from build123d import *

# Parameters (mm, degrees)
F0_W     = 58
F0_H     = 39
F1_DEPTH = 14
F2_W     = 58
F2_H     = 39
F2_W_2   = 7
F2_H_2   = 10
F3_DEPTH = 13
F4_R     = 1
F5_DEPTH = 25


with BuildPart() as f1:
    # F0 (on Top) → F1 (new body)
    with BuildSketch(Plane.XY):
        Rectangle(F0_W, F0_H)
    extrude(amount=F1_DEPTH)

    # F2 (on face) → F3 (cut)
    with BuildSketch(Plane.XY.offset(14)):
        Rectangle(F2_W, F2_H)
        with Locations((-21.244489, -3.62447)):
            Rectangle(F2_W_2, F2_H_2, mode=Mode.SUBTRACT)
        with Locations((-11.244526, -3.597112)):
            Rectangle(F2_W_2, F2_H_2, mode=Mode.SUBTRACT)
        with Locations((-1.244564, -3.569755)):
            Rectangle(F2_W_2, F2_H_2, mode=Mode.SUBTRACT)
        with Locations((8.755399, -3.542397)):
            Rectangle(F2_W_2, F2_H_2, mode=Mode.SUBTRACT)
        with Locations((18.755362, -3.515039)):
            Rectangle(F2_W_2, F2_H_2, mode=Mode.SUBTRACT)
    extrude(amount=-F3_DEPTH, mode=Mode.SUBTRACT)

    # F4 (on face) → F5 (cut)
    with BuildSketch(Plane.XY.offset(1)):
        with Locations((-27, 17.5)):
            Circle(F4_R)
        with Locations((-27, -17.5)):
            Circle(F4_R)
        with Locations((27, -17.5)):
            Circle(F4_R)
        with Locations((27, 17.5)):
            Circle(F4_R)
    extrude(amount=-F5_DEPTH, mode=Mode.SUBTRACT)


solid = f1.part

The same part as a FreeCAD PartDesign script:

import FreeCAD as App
import Part
import Sketcher


def add_polygon(sketch, points):
    """Adds a closed chain of lines whose ends are joined by coincident constraints."""
    first, n = sketch.GeometryCount, len(points)
    for a, b in zip(points, points[1:] + points[:1]):
        sketch.addGeometry(Part.LineSegment(App.Vector(*a, 0), App.Vector(*b, 0)), False)
    for i in range(n):
        sketch.addConstraint(Sketcher.Constraint("Coincident", first + i, 2, first + (i + 1) % n, 1))

doc = App.newDocument("Part")
body = doc.addObject("PartDesign::Body", "Body")

sketch1 = body.newObject("Sketcher::SketchObject", "Sketch")
sketch1.AttachmentSupport = (doc.getObject("XY_Plane"), [""])
sketch1.MapMode = "FlatFace"
add_polygon(sketch1, [(-29, 20), (-29, -20), (29, -20), (29, 20)])
sketch1.addConstraint(Sketcher.Constraint("Vertical", 0))
sketch1.addConstraint(Sketcher.Constraint("Horizontal", 1))
sketch1.addConstraint(Sketcher.Constraint("Vertical", 2))
sketch1.addConstraint(Sketcher.Constraint("Horizontal", 3))
sketch1.addConstraint(Sketcher.Constraint("Symmetric", 0, 2, 2, 2, -1, 1))
sketch1.addConstraint(Sketcher.Constraint("DistanceX", 1, 1, 1, 2, 58.0))
sketch1.addConstraint(Sketcher.Constraint("DistanceY", 0, 2, 0, 1, 39.0))
pad1 = body.newObject("PartDesign::Pad", "Pad")
pad1.Profile = sketch1
pad1.Length = 14

sketch2 = body.newObject("Sketcher::SketchObject", "Sketch001")
sketch2.AttachmentSupport = (doc.getObject("XY_Plane"), [""])
sketch2.MapMode = "FlatFace"
sketch2.AttachmentOffset = App.Placement(App.Vector(0, 0, 14), App.Rotation())
add_polygon(sketch2, [(-29, 20), (-29, -20), (29, -20), (29, 20)])
add_polygon(sketch2, [(-18, -9), (-25, -9), (-25, 1), (-18, 1)])
add_polygon(sketch2, [(-8, -9), (-15, -9), (-15, 1), (-8, 1)])
add_polygon(sketch2, [(2, -9), (-5, -9), (-5, 1), (2, 1)])
add_polygon(sketch2, [(12, -9), (5, -9), (5, 1), (12, 1)])
add_polygon(sketch2, [(22, -9), (15, -9), (15, 1), (22, 1)])
sketch2.addConstraint(Sketcher.Constraint("Vertical", 0))
sketch2.addConstraint(Sketcher.Constraint("Horizontal", 1))
sketch2.addConstraint(Sketcher.Constraint("Vertical", 2))
sketch2.addConstraint(Sketcher.Constraint("Horizontal", 3))
sketch2.addConstraint(Sketcher.Constraint("Horizontal", 4))
sketch2.addConstraint(Sketcher.Constraint("Vertical", 5))
sketch2.addConstraint(Sketcher.Constraint("Horizontal", 6))
sketch2.addConstraint(Sketcher.Constraint("Vertical", 7))
sketch2.addConstraint(Sketcher.Constraint("Horizontal", 8))
sketch2.addConstraint(Sketcher.Constraint("Vertical", 9))
sketch2.addConstraint(Sketcher.Constraint("Horizontal", 10))
sketch2.addConstraint(Sketcher.Constraint("Vertical", 11))
sketch2.addConstraint(Sketcher.Constraint("Horizontal", 12))
sketch2.addConstraint(Sketcher.Constraint("Vertical", 13))
sketch2.addConstraint(Sketcher.Constraint("Horizontal", 14))
sketch2.addConstraint(Sketcher.Constraint("Vertical", 15))
sketch2.addConstraint(Sketcher.Constraint("Horizontal", 16))
sketch2.addConstraint(Sketcher.Constraint("Vertical", 17))
sketch2.addConstraint(Sketcher.Constraint("Horizontal", 18))
sketch2.addConstraint(Sketcher.Constraint("Vertical", 19))
sketch2.addConstraint(Sketcher.Constraint("Horizontal", 20))
sketch2.addConstraint(Sketcher.Constraint("Vertical", 21))
sketch2.addConstraint(Sketcher.Constraint("Horizontal", 22))
sketch2.addConstraint(Sketcher.Constraint("Vertical", 23))
sketch2.addConstraint(Sketcher.Constraint("Symmetric", 0, 2, 2, 2, -1, 1))
sketch2.addConstraint(Sketcher.Constraint("Equal", 6, 8))
sketch2.addConstraint(Sketcher.Constraint("Equal", 10, 12))
sketch2.addConstraint(Sketcher.Constraint("Equal", 14, 16))
sketch2.addConstraint(Sketcher.Constraint("Equal", 18, 20))
sketch2.addConstraint(Sketcher.Constraint("Equal", 7, 9))
sketch2.addConstraint(Sketcher.Constraint("Equal", 11, 13))
sketch2.addConstraint(Sketcher.Constraint("Equal", 15, 17))
sketch2.addConstraint(Sketcher.Constraint("Equal", 19, 21))
sketch2.addConstraint(Sketcher.Constraint("DistanceX", 1, 1, 1, 2, 58.0))
sketch2.addConstraint(Sketcher.Constraint("DistanceX", 4, 2, 4, 1, 7.0))
sketch2.addConstraint(Sketcher.Constraint("DistanceY", 0, 2, 0, 1, 39.0))
sketch2.addConstraint(Sketcher.Constraint("DistanceY", 5, 1, 5, 2, 10.0))
sketch2.addConstraint(Sketcher.Constraint("DistanceX", -1, 1, 16, 2, 5.255399))
sketch2.addConstraint(Sketcher.Constraint("DistanceX", 4, 2, -1, 1, 24.744489))
sketch2.addConstraint(Sketcher.Constraint("DistanceY", 4, 2, -1, 1, 8.62447))
sketch2.addConstraint(Sketcher.Constraint("DistanceY", 8, 2, -1, 1, 8.597112))
sketch2.addConstraint(Sketcher.Constraint("DistanceY", 20, 2, -1, 1, 8.515039))
sketch2.addConstraint(Sketcher.Constraint("DistanceX", 11, 2, 12, 2, 2.999962))
sketch2.addConstraint(Sketcher.Constraint("DistanceY", 15, 2, 16, 2, 0.027358))
sketch2.addConstraint(Sketcher.Constraint("DistanceX", 8, 2, -1, 1, 14.744526))
sketch2.addConstraint(Sketcher.Constraint("DistanceY", 12, 2, -1, 1, 8.569755))
sketch2.addConstraint(Sketcher.Constraint("DistanceX", -1, 1, 20, 2, 15.255362))
pocket1 = body.newObject("PartDesign::Pocket", "Pocket")
pocket1.Profile = sketch2
pocket1.Length = 13

sketch3 = body.newObject("Sketcher::SketchObject", "Sketch002")
sketch3.AttachmentSupport = (doc.getObject("XY_Plane"), [""])
sketch3.MapMode = "FlatFace"
sketch3.AttachmentOffset = App.Placement(App.Vector(0, 0, 1), App.Rotation())
sketch3.addGeometry(Part.Circle(App.Vector(-27, 17.5, 0), App.Vector(0, 0, 1), 1), False)
sketch3.addGeometry(Part.Circle(App.Vector(-27, -17.5, 0), App.Vector(0, 0, 1), 1), False)
sketch3.addGeometry(Part.Circle(App.Vector(27, -17.5, 0), App.Vector(0, 0, 1), 1), False)
sketch3.addGeometry(Part.Circle(App.Vector(27, 17.5, 0), App.Vector(0, 0, 1), 1), False)
sketch3.addConstraint(Sketcher.Constraint("Equal", 0, 1))
sketch3.addConstraint(Sketcher.Constraint("Equal", 1, 2))
sketch3.addConstraint(Sketcher.Constraint("Equal", 2, 3))
sketch3.addConstraint(Sketcher.Constraint("Symmetric", 0, 3, 2, 3, -1, 1))
sketch3.addConstraint(Sketcher.Constraint("Symmetric", 1, 3, 3, 3, -1, 1))
sketch3.addConstraint(Sketcher.Constraint("Symmetric", 1, 3, 2, 3, -2))
sketch3.addConstraint(Sketcher.Constraint("Diameter", 0, 2.0))
sketch3.addConstraint(Sketcher.Constraint("DistanceX", 0, 3, -1, 1, 27.0))
sketch3.addConstraint(Sketcher.Constraint("DistanceY", 1, 3, 0, 3, 35.0))
pocket2 = body.newObject("PartDesign::Pocket", "Pocket001")
pocket2.Profile = sketch3
pocket2.Length = 25

doc.recompute()
